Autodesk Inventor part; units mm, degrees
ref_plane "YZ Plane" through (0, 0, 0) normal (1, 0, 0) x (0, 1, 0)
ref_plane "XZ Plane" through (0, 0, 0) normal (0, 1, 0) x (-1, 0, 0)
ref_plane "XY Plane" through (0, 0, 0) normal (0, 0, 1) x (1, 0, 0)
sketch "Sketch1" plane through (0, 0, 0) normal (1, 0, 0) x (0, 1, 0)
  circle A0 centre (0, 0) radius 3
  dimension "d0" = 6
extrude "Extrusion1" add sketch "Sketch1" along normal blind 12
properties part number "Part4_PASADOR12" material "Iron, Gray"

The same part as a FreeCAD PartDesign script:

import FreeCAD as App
import Part
import Sketcher

V = App.Vector

doc = App.newDocument("Part")
body = doc.addObject("PartDesign::Body", "Body")

# Sketch on YZ plane
sketch1 = body.newObject("Sketcher::SketchObject", "Sketch")
sketch1.AttachmentSupport = (doc.getObject("YZ_Plane"), [""])
sketch1.MapMode = "FlatFace"
sketch1.addGeometry(Part.Circle(V(0, 0, 0), V(0, 0, 1), 3), False)
sketch1.addConstraint([
    Sketcher.Constraint("Coincident", 0, 3, -1, 1),
    Sketcher.Constraint("Diameter", 0, 6.0),
])
pad1 = body.newObject("PartDesign::Pad", "Pad")
pad1.Profile = sketch1
pad1.Length = 12

doc.recompute()
